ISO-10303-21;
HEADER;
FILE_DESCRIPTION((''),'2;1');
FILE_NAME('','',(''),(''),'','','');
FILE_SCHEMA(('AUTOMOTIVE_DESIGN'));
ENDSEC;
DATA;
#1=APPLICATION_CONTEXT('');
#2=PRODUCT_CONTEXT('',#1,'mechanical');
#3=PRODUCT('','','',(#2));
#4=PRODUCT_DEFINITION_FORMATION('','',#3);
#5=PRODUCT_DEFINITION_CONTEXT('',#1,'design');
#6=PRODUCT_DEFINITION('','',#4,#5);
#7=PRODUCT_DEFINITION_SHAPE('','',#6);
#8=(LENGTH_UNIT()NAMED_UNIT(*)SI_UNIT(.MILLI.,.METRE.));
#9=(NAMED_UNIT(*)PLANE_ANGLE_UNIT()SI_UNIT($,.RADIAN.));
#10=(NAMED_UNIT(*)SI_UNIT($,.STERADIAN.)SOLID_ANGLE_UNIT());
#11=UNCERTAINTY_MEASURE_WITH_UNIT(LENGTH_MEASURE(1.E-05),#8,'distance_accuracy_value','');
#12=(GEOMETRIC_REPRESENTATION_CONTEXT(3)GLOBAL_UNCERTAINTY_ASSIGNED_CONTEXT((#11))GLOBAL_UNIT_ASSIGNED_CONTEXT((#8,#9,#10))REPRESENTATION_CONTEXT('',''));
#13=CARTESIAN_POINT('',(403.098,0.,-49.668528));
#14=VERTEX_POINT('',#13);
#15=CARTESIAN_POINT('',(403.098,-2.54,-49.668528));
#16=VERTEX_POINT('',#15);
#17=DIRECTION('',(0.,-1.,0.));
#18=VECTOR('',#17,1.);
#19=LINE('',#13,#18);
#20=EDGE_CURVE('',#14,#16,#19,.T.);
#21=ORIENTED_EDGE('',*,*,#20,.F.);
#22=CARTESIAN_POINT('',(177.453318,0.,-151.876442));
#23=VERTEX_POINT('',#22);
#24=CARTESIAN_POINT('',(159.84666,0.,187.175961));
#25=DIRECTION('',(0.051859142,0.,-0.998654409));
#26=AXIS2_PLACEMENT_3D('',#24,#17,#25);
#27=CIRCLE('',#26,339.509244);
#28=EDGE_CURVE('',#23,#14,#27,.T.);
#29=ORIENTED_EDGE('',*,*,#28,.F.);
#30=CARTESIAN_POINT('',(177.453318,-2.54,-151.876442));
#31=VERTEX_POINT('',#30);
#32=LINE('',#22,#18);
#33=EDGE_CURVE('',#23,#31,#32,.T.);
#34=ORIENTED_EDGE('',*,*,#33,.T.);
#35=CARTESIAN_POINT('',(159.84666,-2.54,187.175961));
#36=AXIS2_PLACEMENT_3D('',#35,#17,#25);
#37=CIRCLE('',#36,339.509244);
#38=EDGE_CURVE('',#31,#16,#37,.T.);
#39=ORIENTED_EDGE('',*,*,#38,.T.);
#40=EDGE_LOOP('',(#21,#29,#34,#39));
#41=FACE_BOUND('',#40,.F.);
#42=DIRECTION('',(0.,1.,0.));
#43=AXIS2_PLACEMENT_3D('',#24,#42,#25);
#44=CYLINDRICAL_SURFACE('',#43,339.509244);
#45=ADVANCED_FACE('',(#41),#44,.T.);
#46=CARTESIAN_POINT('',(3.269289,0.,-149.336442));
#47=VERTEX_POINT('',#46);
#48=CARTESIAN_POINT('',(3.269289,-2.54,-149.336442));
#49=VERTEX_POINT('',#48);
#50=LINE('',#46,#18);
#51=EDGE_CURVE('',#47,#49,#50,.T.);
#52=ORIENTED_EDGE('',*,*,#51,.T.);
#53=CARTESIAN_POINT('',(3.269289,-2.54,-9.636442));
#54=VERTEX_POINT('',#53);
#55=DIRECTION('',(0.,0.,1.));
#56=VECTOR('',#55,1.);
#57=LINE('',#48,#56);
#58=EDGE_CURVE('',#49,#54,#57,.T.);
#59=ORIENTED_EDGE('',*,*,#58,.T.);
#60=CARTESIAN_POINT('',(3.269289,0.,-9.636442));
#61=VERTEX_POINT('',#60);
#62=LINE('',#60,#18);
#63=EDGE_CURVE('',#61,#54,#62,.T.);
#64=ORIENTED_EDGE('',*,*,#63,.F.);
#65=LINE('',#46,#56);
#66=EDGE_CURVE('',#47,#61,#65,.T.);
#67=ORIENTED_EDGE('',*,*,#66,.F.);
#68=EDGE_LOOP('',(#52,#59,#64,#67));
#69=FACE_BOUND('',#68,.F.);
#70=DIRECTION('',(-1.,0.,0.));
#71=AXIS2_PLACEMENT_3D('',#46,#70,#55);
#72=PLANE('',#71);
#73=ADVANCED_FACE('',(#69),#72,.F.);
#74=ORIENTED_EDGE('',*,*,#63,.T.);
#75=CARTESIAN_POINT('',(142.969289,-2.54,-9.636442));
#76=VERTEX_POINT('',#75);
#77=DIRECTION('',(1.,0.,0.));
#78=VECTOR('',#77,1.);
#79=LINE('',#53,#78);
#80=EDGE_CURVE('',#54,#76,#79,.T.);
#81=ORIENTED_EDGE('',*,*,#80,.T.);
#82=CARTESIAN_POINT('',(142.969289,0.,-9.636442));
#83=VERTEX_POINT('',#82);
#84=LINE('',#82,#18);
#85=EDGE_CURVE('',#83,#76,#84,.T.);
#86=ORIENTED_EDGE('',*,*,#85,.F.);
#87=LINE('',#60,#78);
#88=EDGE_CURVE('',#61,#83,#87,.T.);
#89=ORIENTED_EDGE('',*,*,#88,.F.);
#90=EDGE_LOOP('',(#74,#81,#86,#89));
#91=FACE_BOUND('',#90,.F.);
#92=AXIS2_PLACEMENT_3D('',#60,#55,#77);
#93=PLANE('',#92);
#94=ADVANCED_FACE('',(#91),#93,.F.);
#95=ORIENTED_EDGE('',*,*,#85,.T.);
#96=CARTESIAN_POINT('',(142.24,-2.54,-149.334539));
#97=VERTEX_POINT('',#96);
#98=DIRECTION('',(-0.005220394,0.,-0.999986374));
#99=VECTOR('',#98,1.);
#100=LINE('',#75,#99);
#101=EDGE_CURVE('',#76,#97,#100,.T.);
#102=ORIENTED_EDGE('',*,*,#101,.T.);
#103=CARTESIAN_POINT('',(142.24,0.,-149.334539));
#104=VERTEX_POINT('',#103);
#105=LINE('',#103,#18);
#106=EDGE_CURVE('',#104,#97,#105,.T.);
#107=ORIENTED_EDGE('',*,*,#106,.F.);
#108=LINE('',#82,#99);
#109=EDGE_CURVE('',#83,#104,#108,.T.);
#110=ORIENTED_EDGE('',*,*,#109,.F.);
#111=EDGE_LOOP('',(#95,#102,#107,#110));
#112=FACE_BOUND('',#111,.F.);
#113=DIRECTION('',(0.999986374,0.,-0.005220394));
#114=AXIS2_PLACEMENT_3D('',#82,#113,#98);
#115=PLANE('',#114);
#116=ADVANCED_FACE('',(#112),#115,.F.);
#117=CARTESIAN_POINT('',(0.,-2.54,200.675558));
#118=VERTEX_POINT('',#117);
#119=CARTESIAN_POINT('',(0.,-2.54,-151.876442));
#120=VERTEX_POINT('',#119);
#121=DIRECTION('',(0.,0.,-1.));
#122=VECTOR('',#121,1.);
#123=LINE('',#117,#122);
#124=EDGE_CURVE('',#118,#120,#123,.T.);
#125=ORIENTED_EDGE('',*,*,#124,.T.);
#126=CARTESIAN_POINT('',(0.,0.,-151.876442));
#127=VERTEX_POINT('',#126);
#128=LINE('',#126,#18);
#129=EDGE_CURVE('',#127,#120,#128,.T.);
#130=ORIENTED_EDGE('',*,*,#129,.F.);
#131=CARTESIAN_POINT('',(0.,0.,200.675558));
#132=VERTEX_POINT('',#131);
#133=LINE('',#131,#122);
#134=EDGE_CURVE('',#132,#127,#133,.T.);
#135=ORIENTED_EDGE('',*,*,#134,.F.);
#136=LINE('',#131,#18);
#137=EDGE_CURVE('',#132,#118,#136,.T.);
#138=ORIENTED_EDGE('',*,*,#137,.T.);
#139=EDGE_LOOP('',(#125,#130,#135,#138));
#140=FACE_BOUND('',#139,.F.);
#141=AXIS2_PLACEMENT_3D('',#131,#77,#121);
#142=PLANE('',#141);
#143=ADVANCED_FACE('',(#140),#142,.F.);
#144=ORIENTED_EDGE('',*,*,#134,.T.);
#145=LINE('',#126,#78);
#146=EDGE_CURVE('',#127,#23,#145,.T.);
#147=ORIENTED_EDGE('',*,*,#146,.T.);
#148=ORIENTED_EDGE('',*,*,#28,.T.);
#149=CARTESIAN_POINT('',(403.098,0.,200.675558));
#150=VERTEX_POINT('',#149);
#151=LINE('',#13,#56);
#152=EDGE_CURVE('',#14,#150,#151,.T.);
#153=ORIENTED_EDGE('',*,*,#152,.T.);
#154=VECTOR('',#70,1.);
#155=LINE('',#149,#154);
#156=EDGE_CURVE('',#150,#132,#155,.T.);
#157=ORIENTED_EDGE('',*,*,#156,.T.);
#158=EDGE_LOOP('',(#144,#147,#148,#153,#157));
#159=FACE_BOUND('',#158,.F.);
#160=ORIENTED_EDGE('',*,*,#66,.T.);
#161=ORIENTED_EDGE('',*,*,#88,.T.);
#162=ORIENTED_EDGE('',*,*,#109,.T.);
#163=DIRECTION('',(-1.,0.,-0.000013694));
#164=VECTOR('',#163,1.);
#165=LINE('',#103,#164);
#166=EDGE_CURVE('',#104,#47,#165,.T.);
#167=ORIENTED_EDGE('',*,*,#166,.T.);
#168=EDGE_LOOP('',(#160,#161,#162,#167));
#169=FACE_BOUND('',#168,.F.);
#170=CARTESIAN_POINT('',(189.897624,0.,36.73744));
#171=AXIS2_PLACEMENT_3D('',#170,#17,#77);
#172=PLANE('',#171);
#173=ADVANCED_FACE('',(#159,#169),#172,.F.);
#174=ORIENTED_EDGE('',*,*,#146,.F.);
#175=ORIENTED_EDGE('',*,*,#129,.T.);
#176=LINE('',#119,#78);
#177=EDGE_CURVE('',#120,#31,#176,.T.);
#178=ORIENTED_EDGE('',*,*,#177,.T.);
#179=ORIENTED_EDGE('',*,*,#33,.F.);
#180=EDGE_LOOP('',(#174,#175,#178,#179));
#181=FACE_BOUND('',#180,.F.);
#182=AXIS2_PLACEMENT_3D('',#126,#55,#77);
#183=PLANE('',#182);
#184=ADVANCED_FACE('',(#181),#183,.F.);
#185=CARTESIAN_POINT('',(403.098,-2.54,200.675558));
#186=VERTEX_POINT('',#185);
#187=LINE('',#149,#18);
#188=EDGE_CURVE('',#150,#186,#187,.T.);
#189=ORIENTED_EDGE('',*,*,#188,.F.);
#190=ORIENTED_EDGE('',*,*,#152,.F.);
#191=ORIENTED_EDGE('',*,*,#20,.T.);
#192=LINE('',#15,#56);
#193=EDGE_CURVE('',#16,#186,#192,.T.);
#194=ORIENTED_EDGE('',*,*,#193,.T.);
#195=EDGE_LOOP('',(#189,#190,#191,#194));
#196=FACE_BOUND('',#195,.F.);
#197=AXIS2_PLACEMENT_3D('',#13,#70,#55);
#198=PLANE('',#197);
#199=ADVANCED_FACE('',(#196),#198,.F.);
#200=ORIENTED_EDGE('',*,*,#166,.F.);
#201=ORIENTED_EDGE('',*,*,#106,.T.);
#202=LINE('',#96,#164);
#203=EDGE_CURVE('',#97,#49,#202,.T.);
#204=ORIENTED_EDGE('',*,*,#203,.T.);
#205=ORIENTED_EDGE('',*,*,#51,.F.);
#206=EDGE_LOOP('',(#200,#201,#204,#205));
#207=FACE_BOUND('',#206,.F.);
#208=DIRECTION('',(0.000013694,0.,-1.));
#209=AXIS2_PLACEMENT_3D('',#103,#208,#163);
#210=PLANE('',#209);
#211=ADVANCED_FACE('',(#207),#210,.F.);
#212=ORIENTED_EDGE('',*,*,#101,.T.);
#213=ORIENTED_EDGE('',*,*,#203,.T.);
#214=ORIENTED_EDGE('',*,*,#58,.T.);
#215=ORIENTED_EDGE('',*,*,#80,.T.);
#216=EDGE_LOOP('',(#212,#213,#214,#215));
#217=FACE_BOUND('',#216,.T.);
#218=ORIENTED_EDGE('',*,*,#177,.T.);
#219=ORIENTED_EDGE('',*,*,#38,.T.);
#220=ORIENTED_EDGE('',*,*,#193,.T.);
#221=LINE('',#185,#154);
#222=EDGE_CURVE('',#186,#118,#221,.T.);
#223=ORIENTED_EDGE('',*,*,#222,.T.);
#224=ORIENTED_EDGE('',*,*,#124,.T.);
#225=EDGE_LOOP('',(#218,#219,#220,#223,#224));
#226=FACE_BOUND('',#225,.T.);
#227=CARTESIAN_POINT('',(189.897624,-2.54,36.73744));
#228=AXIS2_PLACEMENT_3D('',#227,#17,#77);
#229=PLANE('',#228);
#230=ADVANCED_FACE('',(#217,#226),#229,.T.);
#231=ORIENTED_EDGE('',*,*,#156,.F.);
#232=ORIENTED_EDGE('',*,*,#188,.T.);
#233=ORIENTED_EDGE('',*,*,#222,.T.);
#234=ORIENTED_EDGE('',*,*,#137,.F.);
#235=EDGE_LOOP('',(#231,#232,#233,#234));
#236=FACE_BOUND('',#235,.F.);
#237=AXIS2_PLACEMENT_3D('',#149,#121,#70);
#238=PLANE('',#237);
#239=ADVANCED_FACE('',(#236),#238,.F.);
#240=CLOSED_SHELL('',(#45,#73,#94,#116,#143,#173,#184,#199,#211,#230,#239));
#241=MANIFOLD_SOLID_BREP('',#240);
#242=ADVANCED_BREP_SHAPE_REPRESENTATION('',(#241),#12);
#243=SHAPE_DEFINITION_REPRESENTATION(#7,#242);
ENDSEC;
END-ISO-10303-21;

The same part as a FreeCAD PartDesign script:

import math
import FreeCAD as App
import Part
import Sketcher
Q = App.Units.Quantity

doc = App.newDocument("Part")
params = doc.addObject("Spreadsheet::Sheet", "Params")
for row, (alias, value) in enumerate([
    ("sketch1_width", "5.5 in"),
    ("sketch1_length", "5.5 in"),
    ("sketch1_width2", "15.87 in"),
    ("sketch1_height", "13.88 in"),
    ("pad1_length", "0.1 in"),
], start=1):
    params.set(f"A{row}", alias)
    params.set(f"B{row}", "=" + value)
    params.setAlias(f"B{row}", alias)

body = doc.addObject("PartDesign::Body", "Body")

sketch1 = body.newObject("Sketcher::SketchObject", "Sketch")
sketch1.AttachmentSupport = (doc.getObject("XZ_Plane"), [""])
sketch1.MapMode = "FlatFace"
sketch1.addGeometry(Part.LineSegment(App.Vector(403.098, 200.675558, 0), App.Vector(0, 200.675558, 0)), False)
sketch1.addGeometry(Part.LineSegment(App.Vector(0, 200.675558, 0), App.Vector(0, -151.876442, 0)), False)
sketch1.addGeometry(Part.LineSegment(App.Vector(0, -151.876442, 0), App.Vector(177.453318, -151.876442, 0)), False)
sketch1.addGeometry(Part.ArcOfCircle(Part.Circle(App.Vector(159.84666, 187.175961, 0), App.Vector(0, 0, 1), 339.509244), math.radians(-87.027357), math.radians(-44.235437)), False)
sketch1.addGeometry(Part.LineSegment(App.Vector(403.098, -49.668528, 0), App.Vector(403.098, 200.675558, 0)), False)
sketch1.addGeometry(Part.LineSegment(App.Vector(3.269289, -9.636442, 0), App.Vector(142.969289, -9.636442, 0)), False)
sketch1.addGeometry(Part.LineSegment(App.Vector(142.969289, -9.636442, 0), App.Vector(142.24, -149.334539, 0)), False)
sketch1.addGeometry(Part.LineSegment(App.Vector(142.24, -149.334539, 0), App.Vector(3.269289, -149.336442, 0)), False)
sketch1.addGeometry(Part.LineSegment(App.Vector(3.269289, -149.336442, 0), App.Vector(3.269289, -9.636442, 0)), False)
sketch1.addConstraint(Sketcher.Constraint("Coincident", 0, 2, 1, 1))
sketch1.addConstraint(Sketcher.Constraint("Coincident", 1, 2, 2, 1))
sketch1.addConstraint(Sketcher.Constraint("Coincident", 2, 2, 3, 1))
sketch1.addConstraint(Sketcher.Constraint("Coincident", 3, 2, 4, 1))
sketch1.addConstraint(Sketcher.Constraint("Coincident", 4, 2, 0, 1))
sketch1.addConstraint(Sketcher.Constraint("Coincident", 5, 2, 6, 1))
sketch1.addConstraint(Sketcher.Constraint("Coincident", 6, 2, 7, 1))
sketch1.addConstraint(Sketcher.Constraint("Coincident", 7, 2, 8, 1))
sketch1.addConstraint(Sketcher.Constraint("Coincident", 8, 2, 5, 1))
sketch1.addConstraint(Sketcher.Constraint("Horizontal", 0))
sketch1.addConstraint(Sketcher.Constraint("Vertical", 1))
sketch1.addConstraint(Sketcher.Constraint("Horizontal", 2))
sketch1.addConstraint(Sketcher.Constraint("Vertical", 4))
sketch1.addConstraint(Sketcher.Constraint("Horizontal", 5))
sketch1.addConstraint(Sketcher.Constraint("Vertical", 8))
sketch1.addConstraint(Sketcher.Constraint("PointOnObject", 0, 2, -2))
sketch1.addConstraint(Sketcher.Constraint("Equal", 5, 8))
sketch1.addConstraint(Sketcher.Constraint("DistanceX", 5, 1, 5, 2, Q("5.5 in")))
sketch1.addConstraint(Sketcher.Constraint("Distance", 6, Q("5.5 in")))
sketch1.addConstraint(Sketcher.Constraint("DistanceX", 0, 2, 0, 1, Q("15.87 in")))
sketch1.addConstraint(Sketcher.Constraint("DistanceY", 1, 2, 1, 1, Q("13.88 in")))
sketch1.addConstraint(Sketcher.Constraint("DistanceX", -1, 1, 6, 2, Q("5.6 in")))
sketch1.addConstraint(Sketcher.Constraint("DistanceY", 2, 2, 5, 2, Q("5.6 in")))
sketch1.addConstraint(Sketcher.Constraint("Radius", 3, Q("339.509244 mm")))
sketch1.addConstraint(Sketcher.Constraint("DistanceX", 2, 1, 2, 2, Q("177.453318 mm")))
sketch1.addConstraint(Sketcher.Constraint("DistanceY", 6, 2, 3, 3, Q("336.5105 mm")))
sketch1.addConstraint(Sketcher.Constraint("Distance", 7, Q("138.970711 mm")))
sketch1.addConstraint(Sketcher.Constraint("DistanceY", -1, 1, 3, 3, Q("187.175961 mm")))
sketch1.setExpression("Constraints[17]", "Params.sketch1_width")
sketch1.setExpression("Constraints[18]", "Params.sketch1_length")
sketch1.setExpression("Constraints[19]", "Params.sketch1_width2")
sketch1.setExpression("Constraints[20]", "Params.sketch1_height")
pad1 = body.newObject("PartDesign::Pad", "Pad")
pad1.Profile = sketch1
pad1.setExpression("Length", "Params.pad1_length")

doc.recompute()
